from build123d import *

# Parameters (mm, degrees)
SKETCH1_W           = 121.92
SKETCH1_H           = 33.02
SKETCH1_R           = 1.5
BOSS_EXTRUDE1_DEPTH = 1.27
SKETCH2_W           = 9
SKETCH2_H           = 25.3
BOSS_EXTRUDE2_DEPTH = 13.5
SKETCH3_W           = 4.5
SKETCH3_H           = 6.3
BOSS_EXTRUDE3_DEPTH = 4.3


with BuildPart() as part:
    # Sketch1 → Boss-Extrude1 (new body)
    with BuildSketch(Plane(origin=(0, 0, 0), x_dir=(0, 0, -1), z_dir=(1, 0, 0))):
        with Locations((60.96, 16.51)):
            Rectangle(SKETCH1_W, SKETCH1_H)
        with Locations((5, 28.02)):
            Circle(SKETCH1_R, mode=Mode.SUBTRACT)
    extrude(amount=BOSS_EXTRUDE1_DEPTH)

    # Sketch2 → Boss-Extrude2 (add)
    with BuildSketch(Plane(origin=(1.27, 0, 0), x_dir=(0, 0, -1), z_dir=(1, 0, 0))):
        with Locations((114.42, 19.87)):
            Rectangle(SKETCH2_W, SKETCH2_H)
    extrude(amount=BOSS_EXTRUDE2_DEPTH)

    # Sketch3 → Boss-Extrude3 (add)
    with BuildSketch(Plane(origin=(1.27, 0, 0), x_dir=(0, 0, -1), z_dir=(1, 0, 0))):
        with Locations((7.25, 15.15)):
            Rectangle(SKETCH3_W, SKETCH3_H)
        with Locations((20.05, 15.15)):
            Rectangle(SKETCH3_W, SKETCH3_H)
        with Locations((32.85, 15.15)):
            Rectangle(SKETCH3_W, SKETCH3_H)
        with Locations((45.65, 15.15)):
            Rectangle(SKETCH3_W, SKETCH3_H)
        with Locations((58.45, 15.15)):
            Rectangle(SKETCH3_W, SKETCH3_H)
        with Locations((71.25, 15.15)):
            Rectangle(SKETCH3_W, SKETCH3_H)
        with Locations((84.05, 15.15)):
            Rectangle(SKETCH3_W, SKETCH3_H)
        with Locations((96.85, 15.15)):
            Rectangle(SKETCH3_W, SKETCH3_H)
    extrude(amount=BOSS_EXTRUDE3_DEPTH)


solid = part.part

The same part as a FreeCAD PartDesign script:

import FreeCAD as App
import Part
import Sketcher

V = App.Vector
Q = App.Units.Quantity


def add_polygon(sketch, points):
    """Adds a closed chain of lines whose ends are joined by coincident constraints."""
    first, n = sketch.GeometryCount, len(points)
    for a, b in zip(points, points[1:] + points[:1]):
        sketch.addGeometry(Part.LineSegment(App.Vector(*a, 0), App.Vector(*b, 0)), False)
    for i in range(n):
        sketch.addConstraint(Sketcher.Constraint("Coincident", first + i, 2, first + (i + 1) % n, 1))

doc = App.newDocument("Part")
body = doc.addObject("PartDesign::Body", "Body")

# Sketch on YZ plane
sketch1 = doc.addObject("Sketcher::SketchObject", "Sketch")
body.addObject(sketch1)
sketch1.AttachmentSupport = (doc.YZ_Plane, [""])
sketch1.MapMode = "FlatFace"
add_polygon(sketch1, [(33, 0), (0, 0), (0, -121.9), (33, -121.9)])  # lines 0-3
sketch1.addGeometry(Part.Circle(V(28, -5, 0), V(0, 0, 1), 1.5), False)  # 4
sketch1.addConstraint([
    Sketcher.Constraint("Horizontal", 0),
    Sketcher.Constraint("Vertical", 1),
    Sketcher.Constraint("Horizontal", 2),
    Sketcher.Constraint("Vertical", 3),
    Sketcher.Constraint("Coincident", 0, 2, -1, 1),
    Sketcher.Constraint("Diameter", 4, Q("3 mm")),
    Sketcher.Constraint("DistanceY", 4, 3, -1, 1, Q("5 mm")),
    Sketcher.Constraint("DistanceX", 4, 3, 2, 2, Q("5 mm")),
    Sketcher.Constraint("DistanceX", 0, 2, 0, 1, Q("33.02 mm")),
    Sketcher.Constraint("DistanceY", 1, 2, 1, 1, Q("121.92 mm")),
])
pad1 = doc.addObject("PartDesign::Pad", "Pad")
body.addObject(pad1)
pad1.Profile = sketch1
pad1.Length = 1.27

# Sketch on YZ plane
sketch2 = doc.addObject("Sketcher::SketchObject", "Sketch001")
body.addObject(sketch2)
sketch2.AttachmentSupport = (doc.YZ_Plane, [""])
sketch2.MapMode = "FlatFace"
sketch2.AttachmentOffset = App.Placement(V(0, 0, 1.27), App.Rotation())
add_polygon(sketch2, [(33, -110), (7, -110), (7, -119), (33, -119)])  # lines 0-3
sketch2.addConstraint([
    Sketcher.Constraint("Horizontal", 0),
    Sketcher.Constraint("Vertical", 1),
    Sketcher.Constraint("Horizontal", 2),
    Sketcher.Constraint("Vertical", 3),
    Sketcher.Constraint("DistanceY", 1, 2, 1, 1, Q("9 mm")),
    Sketcher.Constraint("DistanceX", 0, 2, 0, 1, Q("25.3 mm")),
    Sketcher.Constraint("DistanceX", -1, 1, 0, 2, Q("7.22 mm")),
    Sketcher.Constraint("DistanceY", 0, 2, -1, 1, Q("109.92 mm")),
])
pad2 = doc.addObject("PartDesign::Pad", "Pad001")
body.addObject(pad2)
pad2.Profile = sketch2
pad2.Length = 13.5

# Sketch on YZ plane
sketch3 = doc.addObject("Sketcher::SketchObject", "Sketch002")
body.addObject(sketch3)
sketch3.AttachmentSupport = (doc.YZ_Plane, [""])
sketch3.MapMode = "FlatFace"
sketch3.AttachmentOffset = App.Placement(V(0, 0, 1.27), App.Rotation())
add_polygon(sketch3, [(18.3, -5), (12, -5), (12, -9.5), (18.3, -9.5)])  # lines 0-3
add_polygon(sketch3, [(18.3, -17.8), (12, -17.8), (12, -22.3), (18.3, -22.3)])  # lines 4-7
add_polygon(sketch3, [(18.3, -30.6), (12, -30.6), (12, -35.1), (18.3, -35.1)])  # lines 8-11
add_polygon(sketch3, [(18.3, -43.4), (12, -43.4), (12, -47.9), (18.3, -47.9)])  # lines 12-15
add_polygon(sketch3, [(18.3, -56.2), (12, -56.2), (12, -60.7), (18.3, -60.7)])  # lines 16-19
add_polygon(sketch3, [(18.3, -69), (12, -69), (12, -73.5), (18.3, -73.5)])  # lines 20-23
add_polygon(sketch3, [(18.3, -81.8), (12, -81.8), (12, -86.3), (18.3, -86.3)])  # lines 24-27
add_polygon(sketch3, [(18.3, -94.6), (12, -94.6), (12, -99.1), (18.3, -99.1)])  # lines 28-31
sketch3.addConstraint([
    Sketcher.Constraint("Horizontal", 0),
    Sketcher.Constraint("Vertical", 1),
    Sketcher.Constraint("Horizontal", 2),
    Sketcher.Constraint("Vertical", 3),
    Sketcher.Constraint("Horizontal", 4),
    Sketcher.Constraint("Vertical", 5),
    Sketcher.Constraint("Horizontal", 6),
    Sketcher.Constraint("Vertical", 7),
    Sketcher.Constraint("Horizontal", 8),
    Sketcher.Constraint("Vertical", 9),
    Sketcher.Constraint("Horizontal", 10),
    Sketcher.Constraint("Vertical", 11),
    Sketcher.Constraint("Horizontal", 12),
    Sketcher.Constraint("Vertical", 13),
    Sketcher.Constraint("Horizontal", 14),
    Sketcher.Constraint("Vertical", 15),
    Sketcher.Constraint("Horizontal", 16),
    Sketcher.Constraint("Vertical", 17),
    Sketcher.Constraint("Horizontal", 18),
    Sketcher.Constraint("Vertical", 19),
    Sketcher.Constraint("Horizontal", 20),
    Sketcher.Constraint("Vertical", 21),
    Sketcher.Constraint("Horizontal", 22),
    Sketcher.Constraint("Vertical", 23),
    Sketcher.Constraint("Horizontal", 24),
    Sketcher.Constraint("Vertical", 25),
    Sketcher.Constraint("Horizontal", 26),
    Sketcher.Constraint("Vertical", 27),
    Sketcher.Constraint("Horizontal", 28),
    Sketcher.Constraint("Vertical", 29),
    Sketcher.Constraint("Horizontal", 30),
    Sketcher.Constraint("Vertical", 31),
    Sketcher.Constraint("Vertical", 1, 2, 4, 2),
    Sketcher.Constraint("Vertical", 3, 2, 6, 2),
    Sketcher.Constraint("Vertical", 5, 2, 8, 2),
    Sketcher.Constraint("Vertical", 7, 2, 10, 2),
    Sketcher.Constraint("Vertical", 9, 2, 12, 2),
    Sketcher.Constraint("Vertical", 11, 2, 14, 2),
    Sketcher.Constraint("Vertical", 13, 2, 16, 2),
    Sketcher.Constraint("Vertical", 15, 2, 18, 2),
    Sketcher.Constraint("Vertical", 17, 2, 20, 2),
    Sketcher.Constraint("Vertical", 19, 2, 22, 2),
    Sketcher.Constraint("Vertical", 21, 2, 24, 2),
    Sketcher.Constraint("Vertical", 23, 2, 26, 2),
    Sketcher.Constraint("Vertical", 25, 2, 28, 2),
    Sketcher.Constraint("Vertical", 27, 2, 30, 2),
    Sketcher.Constraint("Equal", 3, 5),
    Sketcher.Constraint("Equal", 7, 9),
    Sketcher.Constraint("Equal", 11, 13),
    Sketcher.Constraint("Equal", 15, 17),
    Sketcher.Constraint("Equal", 19, 21),
    Sketcher.Constraint("Equal", 23, 25),
    Sketcher.Constraint("Equal", 27, 29),
    Sketcher.Constraint("DistanceX", 0, 2, 0, 1, Q("6.3 mm")),
    Sketcher.Constraint("DistanceY", 1, 2, 1, 1, Q("4.5 mm")),
    Sketcher.Constraint("DistanceX", -1, 1, 0, 2, Q("12 mm")),
    Sketcher.Constraint("DistanceY", 0, 2, -1, 1, Q("5 mm")),
    Sketcher.Constraint("DistanceY", 20, 2, -1, 1, Q("69 mm")),
    Sketcher.Constraint("DistanceY", 4, 2, -1, 1, Q("17.8 mm")),
    Sketcher.Constraint("DistanceY", 8, 2, -1, 1, Q("30.6 mm")),
    Sketcher.Constraint("DistanceY", 12, 2, -1, 1, Q("43.4 mm")),
    Sketcher.Constraint("DistanceY", 16, 2, -1, 1, Q("56.2 mm")),
    Sketcher.Constraint("DistanceY", 24, 2, -1, 1, Q("81.8 mm")),
    Sketcher.Constraint("DistanceY", 28, 2, -1, 1, Q("94.6 mm")),
])
pad3 = doc.addObject("PartDesign::Pad", "Pad002")
body.addObject(pad3)
pad3.Profile = sketch3
pad3.Length = 4.3

doc.recompute()
